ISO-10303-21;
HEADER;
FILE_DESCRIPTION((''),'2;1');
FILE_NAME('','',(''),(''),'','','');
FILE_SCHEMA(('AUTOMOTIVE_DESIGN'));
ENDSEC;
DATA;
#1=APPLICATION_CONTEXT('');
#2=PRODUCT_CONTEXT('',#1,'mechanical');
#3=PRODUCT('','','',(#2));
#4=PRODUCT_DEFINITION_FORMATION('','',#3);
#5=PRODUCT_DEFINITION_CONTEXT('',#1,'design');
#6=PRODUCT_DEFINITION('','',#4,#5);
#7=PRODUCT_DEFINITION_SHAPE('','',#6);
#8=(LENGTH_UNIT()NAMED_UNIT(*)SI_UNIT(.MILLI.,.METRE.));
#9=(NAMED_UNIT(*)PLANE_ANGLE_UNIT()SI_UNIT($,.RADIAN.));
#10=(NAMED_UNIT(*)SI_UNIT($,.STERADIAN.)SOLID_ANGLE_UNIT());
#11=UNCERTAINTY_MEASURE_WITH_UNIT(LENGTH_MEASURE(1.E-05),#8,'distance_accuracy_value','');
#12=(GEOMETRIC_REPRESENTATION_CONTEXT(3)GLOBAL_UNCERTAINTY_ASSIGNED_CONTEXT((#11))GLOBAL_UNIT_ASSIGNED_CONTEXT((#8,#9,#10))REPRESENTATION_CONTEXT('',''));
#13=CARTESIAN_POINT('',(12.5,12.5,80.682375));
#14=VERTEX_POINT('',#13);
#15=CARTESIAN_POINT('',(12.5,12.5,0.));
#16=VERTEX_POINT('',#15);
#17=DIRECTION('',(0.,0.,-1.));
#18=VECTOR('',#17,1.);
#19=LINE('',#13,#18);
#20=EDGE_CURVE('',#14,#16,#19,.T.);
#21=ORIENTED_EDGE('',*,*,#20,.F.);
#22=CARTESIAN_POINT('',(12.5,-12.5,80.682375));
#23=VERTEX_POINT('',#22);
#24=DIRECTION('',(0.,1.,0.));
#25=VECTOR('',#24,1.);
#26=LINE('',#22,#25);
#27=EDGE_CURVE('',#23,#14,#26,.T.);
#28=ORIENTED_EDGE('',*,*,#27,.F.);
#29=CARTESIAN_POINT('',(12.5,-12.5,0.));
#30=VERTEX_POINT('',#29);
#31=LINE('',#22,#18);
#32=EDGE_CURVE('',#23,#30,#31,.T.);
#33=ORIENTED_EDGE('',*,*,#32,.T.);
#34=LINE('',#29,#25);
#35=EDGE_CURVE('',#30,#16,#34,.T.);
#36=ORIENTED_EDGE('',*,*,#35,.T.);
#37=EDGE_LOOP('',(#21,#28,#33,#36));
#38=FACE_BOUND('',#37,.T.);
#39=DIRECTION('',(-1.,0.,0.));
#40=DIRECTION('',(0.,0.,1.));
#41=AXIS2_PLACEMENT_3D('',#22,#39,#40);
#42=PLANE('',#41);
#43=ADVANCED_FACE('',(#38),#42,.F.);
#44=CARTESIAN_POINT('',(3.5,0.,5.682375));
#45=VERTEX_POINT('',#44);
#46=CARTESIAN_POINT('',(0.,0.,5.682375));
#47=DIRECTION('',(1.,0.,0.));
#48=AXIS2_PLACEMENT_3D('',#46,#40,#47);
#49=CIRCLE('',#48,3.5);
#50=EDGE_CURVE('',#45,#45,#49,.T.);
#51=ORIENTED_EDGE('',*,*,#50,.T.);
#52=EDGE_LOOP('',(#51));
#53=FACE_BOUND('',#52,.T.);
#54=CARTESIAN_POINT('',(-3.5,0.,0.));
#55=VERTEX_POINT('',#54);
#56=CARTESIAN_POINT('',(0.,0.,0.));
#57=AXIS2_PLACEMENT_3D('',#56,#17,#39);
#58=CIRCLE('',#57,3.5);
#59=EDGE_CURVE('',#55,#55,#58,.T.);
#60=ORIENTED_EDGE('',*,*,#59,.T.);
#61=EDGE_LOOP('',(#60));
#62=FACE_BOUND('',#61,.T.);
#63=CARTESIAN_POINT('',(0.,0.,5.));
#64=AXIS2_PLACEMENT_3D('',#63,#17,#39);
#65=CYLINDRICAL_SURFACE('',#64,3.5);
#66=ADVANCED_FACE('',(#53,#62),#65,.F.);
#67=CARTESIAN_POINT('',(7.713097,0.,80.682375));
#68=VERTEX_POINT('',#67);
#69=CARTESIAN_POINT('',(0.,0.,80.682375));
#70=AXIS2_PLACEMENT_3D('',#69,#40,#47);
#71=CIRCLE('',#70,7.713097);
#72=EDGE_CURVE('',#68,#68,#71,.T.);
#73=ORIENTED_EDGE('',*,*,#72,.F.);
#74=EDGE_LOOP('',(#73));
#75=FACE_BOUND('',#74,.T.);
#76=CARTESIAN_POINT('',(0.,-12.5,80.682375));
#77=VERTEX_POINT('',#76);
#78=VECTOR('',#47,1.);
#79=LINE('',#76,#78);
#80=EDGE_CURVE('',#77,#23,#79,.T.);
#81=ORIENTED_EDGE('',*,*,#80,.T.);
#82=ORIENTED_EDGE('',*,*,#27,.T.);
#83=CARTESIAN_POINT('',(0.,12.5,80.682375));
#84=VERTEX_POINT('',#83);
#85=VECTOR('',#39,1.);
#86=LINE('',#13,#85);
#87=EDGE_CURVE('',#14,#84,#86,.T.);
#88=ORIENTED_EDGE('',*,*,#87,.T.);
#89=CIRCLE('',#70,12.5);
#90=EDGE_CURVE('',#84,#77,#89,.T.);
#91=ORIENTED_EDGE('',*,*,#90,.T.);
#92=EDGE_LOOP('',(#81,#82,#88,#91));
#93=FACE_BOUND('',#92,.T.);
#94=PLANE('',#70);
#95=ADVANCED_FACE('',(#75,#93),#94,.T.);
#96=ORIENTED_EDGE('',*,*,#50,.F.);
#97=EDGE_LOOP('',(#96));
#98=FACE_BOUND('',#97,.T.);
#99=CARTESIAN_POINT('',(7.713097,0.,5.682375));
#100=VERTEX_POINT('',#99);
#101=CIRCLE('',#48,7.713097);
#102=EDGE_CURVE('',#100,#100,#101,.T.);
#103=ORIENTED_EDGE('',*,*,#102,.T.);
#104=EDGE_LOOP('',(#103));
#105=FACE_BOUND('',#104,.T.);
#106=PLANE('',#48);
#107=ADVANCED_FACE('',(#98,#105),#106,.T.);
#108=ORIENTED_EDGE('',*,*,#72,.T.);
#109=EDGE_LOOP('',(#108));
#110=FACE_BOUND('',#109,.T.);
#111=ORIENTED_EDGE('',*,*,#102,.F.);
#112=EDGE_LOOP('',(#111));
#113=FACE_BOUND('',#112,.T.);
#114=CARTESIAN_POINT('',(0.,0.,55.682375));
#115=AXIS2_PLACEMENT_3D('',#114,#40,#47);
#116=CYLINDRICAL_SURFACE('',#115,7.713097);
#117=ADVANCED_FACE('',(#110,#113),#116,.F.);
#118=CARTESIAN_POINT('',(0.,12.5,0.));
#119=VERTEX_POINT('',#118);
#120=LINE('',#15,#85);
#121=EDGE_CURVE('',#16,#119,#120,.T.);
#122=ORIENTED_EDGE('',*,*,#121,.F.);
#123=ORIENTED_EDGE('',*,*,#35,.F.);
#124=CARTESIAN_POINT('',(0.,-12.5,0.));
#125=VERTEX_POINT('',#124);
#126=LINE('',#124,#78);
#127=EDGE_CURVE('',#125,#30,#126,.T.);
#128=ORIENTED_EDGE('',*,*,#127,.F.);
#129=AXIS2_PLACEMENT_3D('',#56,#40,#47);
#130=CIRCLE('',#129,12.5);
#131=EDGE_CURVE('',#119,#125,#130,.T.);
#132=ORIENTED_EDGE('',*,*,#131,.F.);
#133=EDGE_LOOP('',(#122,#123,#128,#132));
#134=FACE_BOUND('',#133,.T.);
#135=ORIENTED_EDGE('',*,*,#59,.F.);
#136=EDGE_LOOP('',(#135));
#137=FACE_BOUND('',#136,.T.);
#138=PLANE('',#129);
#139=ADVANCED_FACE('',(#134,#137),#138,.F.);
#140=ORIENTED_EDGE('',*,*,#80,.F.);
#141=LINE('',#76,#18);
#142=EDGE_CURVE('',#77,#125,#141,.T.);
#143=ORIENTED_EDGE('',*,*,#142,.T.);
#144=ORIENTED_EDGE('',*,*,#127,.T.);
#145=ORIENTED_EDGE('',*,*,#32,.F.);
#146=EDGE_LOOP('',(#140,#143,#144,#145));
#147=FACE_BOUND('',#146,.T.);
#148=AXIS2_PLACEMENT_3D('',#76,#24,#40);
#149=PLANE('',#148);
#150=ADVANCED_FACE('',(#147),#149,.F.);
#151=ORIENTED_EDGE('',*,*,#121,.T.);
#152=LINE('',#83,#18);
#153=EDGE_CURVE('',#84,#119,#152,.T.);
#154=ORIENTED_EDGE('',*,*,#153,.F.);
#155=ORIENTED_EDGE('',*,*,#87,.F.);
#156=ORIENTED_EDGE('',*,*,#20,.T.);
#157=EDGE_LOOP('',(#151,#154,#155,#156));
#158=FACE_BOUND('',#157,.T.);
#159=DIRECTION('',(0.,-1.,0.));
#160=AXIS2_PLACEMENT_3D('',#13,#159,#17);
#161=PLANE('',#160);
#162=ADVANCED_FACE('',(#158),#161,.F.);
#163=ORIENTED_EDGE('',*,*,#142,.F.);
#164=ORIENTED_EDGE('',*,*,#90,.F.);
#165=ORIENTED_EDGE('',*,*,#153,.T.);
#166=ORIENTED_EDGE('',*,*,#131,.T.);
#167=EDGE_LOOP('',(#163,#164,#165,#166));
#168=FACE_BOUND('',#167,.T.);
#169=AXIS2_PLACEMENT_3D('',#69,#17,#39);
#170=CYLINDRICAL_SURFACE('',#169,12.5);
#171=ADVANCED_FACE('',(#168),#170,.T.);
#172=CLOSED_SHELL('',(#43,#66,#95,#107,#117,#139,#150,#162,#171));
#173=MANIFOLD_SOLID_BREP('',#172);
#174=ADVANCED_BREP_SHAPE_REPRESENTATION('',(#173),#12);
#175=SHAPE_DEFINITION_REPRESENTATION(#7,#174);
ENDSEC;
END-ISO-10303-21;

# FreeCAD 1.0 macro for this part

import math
import FreeCAD as App
import Part
import Sketcher
from FreeCAD import Vector
Q = App.Units.Quantity

doc = App.newDocument("Part")
body = doc.addObject("PartDesign::Body", "Body")

sketch1 = doc.addObject("Sketcher::SketchObject", "Sketch")
body.addObject(sketch1)
sketch1.AttachmentSupport = (doc.XY_Plane, [""])
sketch1.MapMode = "FlatFace"
sketch1.addGeometry([
    Part.LineSegment(Vector(0, -12, 0), Vector(12, -12, 0)),
    Part.LineSegment(Vector(12, -12, 0), Vector(12, 12, 0)),
    Part.LineSegment(Vector(12, 12, 0), Vector(0, 12, 0)),
    Part.ArcOfCircle(Part.Circle(Vector(0, 0, 0), Vector(0, 0, 1), 12), math.radians(90), math.radians(270)),
], False)
sketch1.addConstraint([
    Sketcher.Constraint("Coincident", 0, 2, 1, 1),
    Sketcher.Constraint("Coincident", 1, 2, 2, 1),
    Sketcher.Constraint("Tangent", 2, 2, 3, 1),
    Sketcher.Constraint("Tangent", 3, 2, 0, 1),
    Sketcher.Constraint("Horizontal", 0),
    Sketcher.Constraint("Vertical", 1),
    Sketcher.Constraint("Horizontal", 2),
    Sketcher.Constraint("Coincident", 3, 3, -1, 1),
    Sketcher.Constraint("Radius", 3, Q("12.5 mm")),
    Sketcher.Constraint("DistanceX", 0, 1, 0, 2, Q("12.5 mm")),
])
pad1 = doc.addObject("PartDesign::Pad", "Pad")
body.addObject(pad1)
pad1.Profile = sketch1
pad1.Length = 80.682375

sketch2 = doc.addObject("Sketcher::SketchObject", "Sketch001")
body.addObject(sketch2)
sketch2.AttachmentSupport = (doc.XY_Plane, [""])
sketch2.MapMode = "FlatFace"
sketch2.AttachmentOffset = App.Placement(Vector(0, 0, 80.682375), App.Rotation())
sketch2.addGeometry(Part.Circle(Vector(0, 0, 0), Vector(0, 0, 1), 8), False)
sketch2.addConstraint([
    Sketcher.Constraint("Coincident", 0, 3, -1, 1),
    Sketcher.Constraint("Diameter", 0, Q("15.426194 mm")),
])
pocket1 = doc.addObject("PartDesign::Pocket", "Pocket")
body.addObject(pocket1)
pocket1.Profile = sketch2
pocket1.Length = 25

sketch3 = doc.addObject("Sketcher::SketchObject", "Sketch002")
body.addObject(sketch3)
sketch3.AttachmentSupport = (doc.XY_Plane, [""])
sketch3.MapMode = "FlatFace"
sketch3.addGeometry(Part.Circle(Vector(0, 0, 0), Vector(0, 0, 1), 3.5), False)
sketch3.addConstraint([
    Sketcher.Constraint("Coincident", 0, 3, -1, 1),
    Sketcher.Constraint("Diameter", 0, Q("7 mm")),
])
pocket2 = doc.addObject("PartDesign::Pocket", "Pocket001")
body.addObject(pocket2)
pocket2.Profile = sketch3
pocket2.Length = 5
pocket2.Reversed = True

sketch4 = doc.addObject("Sketcher::SketchObject", "Sketch003")
body.addObject(sketch4)
sketch4.AttachmentSupport = (doc.XY_Plane, [""])
sketch4.MapMode = "FlatFace"
sketch4.AttachmentOffset = App.Placement(Vector(0, 0, 55.682375), App.Rotation())
sketch4.addGeometry(Part.Circle(Vector(0, 0, 0), Vector(0, 0, 1), 8), False)
sketch4.addConstraint([
    Sketcher.Constraint("Coincident", 0, 3, -1, 1),
    Sketcher.Constraint("Diameter", 0, Q("15.426194 mm")),
])
pocket3 = doc.addObject("PartDesign::Pocket", "Pocket002")
body.addObject(pocket3)
pocket3.Profile = sketch4
pocket3.Length = 50

sketch5 = doc.addObject("Sketcher::SketchObject", "Sketch004")
body.addObject(sketch5)
sketch5.AttachmentSupport = (doc.XY_Plane, [""])
sketch5.MapMode = "FlatFace"
sketch5.addGeometry(Part.Circle(Vector(0, 0, 0), Vector(0, 0, 1), 3.5), False)
sketch5.addConstraint([
    Sketcher.Constraint("Coincident", 0, 3, -1, 1),
    Sketcher.Constraint("Diameter", 0, Q("7 mm")),
])
pocket4 = doc.addObject("PartDesign::Pocket", "Pocket003")
body.addObject(pocket4)
pocket4.Profile = sketch5
pocket4.Length = 50
pocket4.Reversed = True

doc.recompute()
